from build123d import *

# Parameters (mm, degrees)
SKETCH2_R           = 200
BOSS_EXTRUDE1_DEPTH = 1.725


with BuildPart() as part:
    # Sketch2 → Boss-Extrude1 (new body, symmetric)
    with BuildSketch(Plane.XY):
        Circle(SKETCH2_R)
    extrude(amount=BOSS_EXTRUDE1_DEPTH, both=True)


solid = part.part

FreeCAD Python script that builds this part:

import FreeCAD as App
import Part
import Sketcher

V = App.Vector
Q = App.Units.Quantity

doc = App.newDocument("Part")
body = doc.addObject("PartDesign::Body", "Body")

sketch1 = doc.addObject("Sketcher::SketchObject", "Sketch")
body.addObject(sketch1)
sketch1.AttachmentSupport = (doc.XY_Plane, [""])
sketch1.MapMode = "FlatFace"
sketch1.addGeometry(Part.Circle(V(0, 0, 0), V(0, 0, 1), 200), False)
sketch1.addConstraint([
    Sketcher.Constraint("Coincident", 0, 3, -1, 1),
    Sketcher.Constraint("Diameter", 0, Q("400 mm")),
])
pad1 = doc.addObject("PartDesign::Pad", "Pad")
body.addObject(pad1)
pad1.Profile = sketch1
pad1.Length = 3.45
pad1.Midplane = True

doc.recompute()
